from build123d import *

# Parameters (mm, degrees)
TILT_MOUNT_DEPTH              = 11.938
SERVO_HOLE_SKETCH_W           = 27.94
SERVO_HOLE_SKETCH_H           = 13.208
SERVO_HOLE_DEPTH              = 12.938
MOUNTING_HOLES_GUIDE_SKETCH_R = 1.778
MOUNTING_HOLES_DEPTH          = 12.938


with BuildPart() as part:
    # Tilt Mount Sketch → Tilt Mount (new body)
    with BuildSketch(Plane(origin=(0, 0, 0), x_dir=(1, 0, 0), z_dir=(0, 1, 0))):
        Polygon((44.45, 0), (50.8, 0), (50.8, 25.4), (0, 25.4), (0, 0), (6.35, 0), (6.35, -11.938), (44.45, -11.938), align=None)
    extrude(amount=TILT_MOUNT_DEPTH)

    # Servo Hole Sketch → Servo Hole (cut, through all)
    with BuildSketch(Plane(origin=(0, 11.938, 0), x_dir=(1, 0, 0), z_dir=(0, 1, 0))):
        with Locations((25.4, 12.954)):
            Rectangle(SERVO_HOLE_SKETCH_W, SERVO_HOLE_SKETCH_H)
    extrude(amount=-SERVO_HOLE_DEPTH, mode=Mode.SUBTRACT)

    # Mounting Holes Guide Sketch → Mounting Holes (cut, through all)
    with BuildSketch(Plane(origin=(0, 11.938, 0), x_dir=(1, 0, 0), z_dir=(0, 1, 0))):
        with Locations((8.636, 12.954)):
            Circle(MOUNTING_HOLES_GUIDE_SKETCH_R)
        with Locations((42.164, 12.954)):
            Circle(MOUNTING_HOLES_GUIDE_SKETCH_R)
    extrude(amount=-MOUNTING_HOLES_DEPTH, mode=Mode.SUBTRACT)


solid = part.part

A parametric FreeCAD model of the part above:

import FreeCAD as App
import Part
import Sketcher
from FreeCAD import Vector
Q = App.Units.Quantity

doc = App.newDocument("Part")
body = doc.addObject("PartDesign::Body", "Body")

# Sketch on XZ plane
sketch1 = body.newObject("Sketcher::SketchObject", "Sketch")
sketch1.AttachmentSupport = (doc.getObject("XZ_Plane"), [""])
sketch1.MapMode = "FlatFace"
sketch1.addGeometry([
    Part.LineSegment(Vector(44, 0, 0), Vector(51, 0, 0)),  # 0
    Part.LineSegment(Vector(51, 0, 0), Vector(51, -25, 0)),  # 1
    Part.LineSegment(Vector(51, -25, 0), Vector(0, -25, 0)),  # 2
    Part.LineSegment(Vector(0, -25, 0), Vector(0, 0, 0)),  # 3
    Part.LineSegment(Vector(0, 0, 0), Vector(6, 0, 0)),  # 4
    Part.LineSegment(Vector(6, 0, 0), Vector(6, 12, 0)),  # 5
    Part.LineSegment(Vector(6, 12, 0), Vector(44, 12, 0)),  # 6
    Part.LineSegment(Vector(44, 12, 0), Vector(44, 0, 0)),  # 7
], False)
sketch1.addConstraint([
    Sketcher.Constraint("Coincident", 0, 2, 1, 1),
    Sketcher.Constraint("Coincident", 1, 2, 2, 1),
    Sketcher.Constraint("Coincident", 2, 2, 3, 1),
    Sketcher.Constraint("Coincident", 3, 2, 4, 1),
    Sketcher.Constraint("Coincident", 4, 2, 5, 1),
    Sketcher.Constraint("Coincident", 5, 2, 6, 1),
    Sketcher.Constraint("Coincident", 6, 2, 7, 1),
    Sketcher.Constraint("Coincident", 7, 2, 0, 1),
    Sketcher.Constraint("Horizontal", 0),
    Sketcher.Constraint("Vertical", 1),
    Sketcher.Constraint("Horizontal", 2),
    Sketcher.Constraint("Vertical", 3),
    Sketcher.Constraint("Horizontal", 4),
    Sketcher.Constraint("Vertical", 5),
    Sketcher.Constraint("Horizontal", 6),
    Sketcher.Constraint("Vertical", 7),
    Sketcher.Constraint("Coincident", 3, 2, -1, 1),
    Sketcher.Constraint("PointOnObject", 0, 2, -1),
    Sketcher.Constraint("Equal", 0, 4),
    Sketcher.Constraint("DistanceX", 2, 2, 2, 1, Q("2 in")),
    Sketcher.Constraint("DistanceY", 1, 2, 1, 1, Q("1 in")),
    Sketcher.Constraint("DistanceX", 6, 1, 6, 2, Q("1.5 in")),
    Sketcher.Constraint("DistanceY", 5, 1, 5, 2, Q("0.47 in")),
])
pad1 = body.newObject("PartDesign::Pad", "Pad")
pad1.Profile = sketch1
pad1.Length = Q("0.47 in")
pad1.Reversed = True

# Sketch on XZ plane
sketch2 = body.newObject("Sketcher::SketchObject", "Sketch001")
sketch2.AttachmentSupport = (doc.getObject("XZ_Plane"), [""])
sketch2.MapMode = "FlatFace"
sketch2.AttachmentOffset = App.Placement(Vector(0, 0, -0.47 * 25.4), App.Rotation())
sketch2.addGeometry([
    Part.LineSegment(Vector(11, -20, 0), Vector(11, -6, 0)),
    Part.LineSegment(Vector(11, -6, 0), Vector(39, -6, 0)),
    Part.LineSegment(Vector(39, -6, 0), Vector(39, -20, 0)),
    Part.LineSegment(Vector(39, -20, 0), Vector(11, -20, 0)),
], False)
sketch2.addConstraint([
    Sketcher.Constraint("Coincident", 0, 2, 1, 1),
    Sketcher.Constraint("Coincident", 1, 2, 2, 1),
    Sketcher.Constraint("Coincident", 2, 2, 3, 1),
    Sketcher.Constraint("Coincident", 3, 2, 0, 1),
    Sketcher.Constraint("Vertical", 0),
    Sketcher.Constraint("Horizontal", 1),
    Sketcher.Constraint("Vertical", 2),
    Sketcher.Constraint("Horizontal", 3),
    Sketcher.Constraint("DistanceX", 1, 1, 1, 2, Q("1.1 in")),
    Sketcher.Constraint("DistanceY", 0, 1, 0, 2, Q("0.52 in")),
    Sketcher.Constraint("DistanceX", -1, 1, 0, 2, Q("0.45 in")),
    Sketcher.Constraint("DistanceY", 0, 2, -1, 1, Q("0.25 in")),
])
pocket1 = body.newObject("PartDesign::Pocket", "Pocket")
pocket1.Profile = sketch2
pocket1.Type = "ThroughAll"
pocket1.Reversed = True

# Sketch on XZ plane
sketch3 = body.newObject("Sketcher::SketchObject", "Sketch002")
sketch3.AttachmentSupport = (doc.getObject("XZ_Plane"), [""])
sketch3.MapMode = "FlatFace"
sketch3.AttachmentOffset = App.Placement(Vector(0, 0, -0.47 * 25.4), App.Rotation())
sketch3.addGeometry([
    Part.Circle(Vector(8.6, -13, 0), Vector(0, 0, 1), 1.8),
    Part.Circle(Vector(42.2, -13, 0), Vector(0, 0, 1), 1.8),
], False)
sketch3.addConstraint([
    Sketcher.Constraint("Equal", 0, 1),
    Sketcher.Constraint("Horizontal", 0, 3, 1, 3),
    Sketcher.Constraint("Diameter", 0, Q("0.14 in")),
    Sketcher.Constraint("DistanceX", -1, 1, 0, 3, Q("0.34 in")),
    Sketcher.Constraint("DistanceY", 0, 3, -1, 1, Q("0.51 in")),
    Sketcher.Constraint("DistanceX", -1, 1, 1, 3, Q("1.66 in")),
])
pocket2 = body.newObject("PartDesign::Pocket", "Pocket001")
pocket2.Profile = sketch3
pocket2.Type = "ThroughAll"
pocket2.Reversed = True

doc.recompute()
